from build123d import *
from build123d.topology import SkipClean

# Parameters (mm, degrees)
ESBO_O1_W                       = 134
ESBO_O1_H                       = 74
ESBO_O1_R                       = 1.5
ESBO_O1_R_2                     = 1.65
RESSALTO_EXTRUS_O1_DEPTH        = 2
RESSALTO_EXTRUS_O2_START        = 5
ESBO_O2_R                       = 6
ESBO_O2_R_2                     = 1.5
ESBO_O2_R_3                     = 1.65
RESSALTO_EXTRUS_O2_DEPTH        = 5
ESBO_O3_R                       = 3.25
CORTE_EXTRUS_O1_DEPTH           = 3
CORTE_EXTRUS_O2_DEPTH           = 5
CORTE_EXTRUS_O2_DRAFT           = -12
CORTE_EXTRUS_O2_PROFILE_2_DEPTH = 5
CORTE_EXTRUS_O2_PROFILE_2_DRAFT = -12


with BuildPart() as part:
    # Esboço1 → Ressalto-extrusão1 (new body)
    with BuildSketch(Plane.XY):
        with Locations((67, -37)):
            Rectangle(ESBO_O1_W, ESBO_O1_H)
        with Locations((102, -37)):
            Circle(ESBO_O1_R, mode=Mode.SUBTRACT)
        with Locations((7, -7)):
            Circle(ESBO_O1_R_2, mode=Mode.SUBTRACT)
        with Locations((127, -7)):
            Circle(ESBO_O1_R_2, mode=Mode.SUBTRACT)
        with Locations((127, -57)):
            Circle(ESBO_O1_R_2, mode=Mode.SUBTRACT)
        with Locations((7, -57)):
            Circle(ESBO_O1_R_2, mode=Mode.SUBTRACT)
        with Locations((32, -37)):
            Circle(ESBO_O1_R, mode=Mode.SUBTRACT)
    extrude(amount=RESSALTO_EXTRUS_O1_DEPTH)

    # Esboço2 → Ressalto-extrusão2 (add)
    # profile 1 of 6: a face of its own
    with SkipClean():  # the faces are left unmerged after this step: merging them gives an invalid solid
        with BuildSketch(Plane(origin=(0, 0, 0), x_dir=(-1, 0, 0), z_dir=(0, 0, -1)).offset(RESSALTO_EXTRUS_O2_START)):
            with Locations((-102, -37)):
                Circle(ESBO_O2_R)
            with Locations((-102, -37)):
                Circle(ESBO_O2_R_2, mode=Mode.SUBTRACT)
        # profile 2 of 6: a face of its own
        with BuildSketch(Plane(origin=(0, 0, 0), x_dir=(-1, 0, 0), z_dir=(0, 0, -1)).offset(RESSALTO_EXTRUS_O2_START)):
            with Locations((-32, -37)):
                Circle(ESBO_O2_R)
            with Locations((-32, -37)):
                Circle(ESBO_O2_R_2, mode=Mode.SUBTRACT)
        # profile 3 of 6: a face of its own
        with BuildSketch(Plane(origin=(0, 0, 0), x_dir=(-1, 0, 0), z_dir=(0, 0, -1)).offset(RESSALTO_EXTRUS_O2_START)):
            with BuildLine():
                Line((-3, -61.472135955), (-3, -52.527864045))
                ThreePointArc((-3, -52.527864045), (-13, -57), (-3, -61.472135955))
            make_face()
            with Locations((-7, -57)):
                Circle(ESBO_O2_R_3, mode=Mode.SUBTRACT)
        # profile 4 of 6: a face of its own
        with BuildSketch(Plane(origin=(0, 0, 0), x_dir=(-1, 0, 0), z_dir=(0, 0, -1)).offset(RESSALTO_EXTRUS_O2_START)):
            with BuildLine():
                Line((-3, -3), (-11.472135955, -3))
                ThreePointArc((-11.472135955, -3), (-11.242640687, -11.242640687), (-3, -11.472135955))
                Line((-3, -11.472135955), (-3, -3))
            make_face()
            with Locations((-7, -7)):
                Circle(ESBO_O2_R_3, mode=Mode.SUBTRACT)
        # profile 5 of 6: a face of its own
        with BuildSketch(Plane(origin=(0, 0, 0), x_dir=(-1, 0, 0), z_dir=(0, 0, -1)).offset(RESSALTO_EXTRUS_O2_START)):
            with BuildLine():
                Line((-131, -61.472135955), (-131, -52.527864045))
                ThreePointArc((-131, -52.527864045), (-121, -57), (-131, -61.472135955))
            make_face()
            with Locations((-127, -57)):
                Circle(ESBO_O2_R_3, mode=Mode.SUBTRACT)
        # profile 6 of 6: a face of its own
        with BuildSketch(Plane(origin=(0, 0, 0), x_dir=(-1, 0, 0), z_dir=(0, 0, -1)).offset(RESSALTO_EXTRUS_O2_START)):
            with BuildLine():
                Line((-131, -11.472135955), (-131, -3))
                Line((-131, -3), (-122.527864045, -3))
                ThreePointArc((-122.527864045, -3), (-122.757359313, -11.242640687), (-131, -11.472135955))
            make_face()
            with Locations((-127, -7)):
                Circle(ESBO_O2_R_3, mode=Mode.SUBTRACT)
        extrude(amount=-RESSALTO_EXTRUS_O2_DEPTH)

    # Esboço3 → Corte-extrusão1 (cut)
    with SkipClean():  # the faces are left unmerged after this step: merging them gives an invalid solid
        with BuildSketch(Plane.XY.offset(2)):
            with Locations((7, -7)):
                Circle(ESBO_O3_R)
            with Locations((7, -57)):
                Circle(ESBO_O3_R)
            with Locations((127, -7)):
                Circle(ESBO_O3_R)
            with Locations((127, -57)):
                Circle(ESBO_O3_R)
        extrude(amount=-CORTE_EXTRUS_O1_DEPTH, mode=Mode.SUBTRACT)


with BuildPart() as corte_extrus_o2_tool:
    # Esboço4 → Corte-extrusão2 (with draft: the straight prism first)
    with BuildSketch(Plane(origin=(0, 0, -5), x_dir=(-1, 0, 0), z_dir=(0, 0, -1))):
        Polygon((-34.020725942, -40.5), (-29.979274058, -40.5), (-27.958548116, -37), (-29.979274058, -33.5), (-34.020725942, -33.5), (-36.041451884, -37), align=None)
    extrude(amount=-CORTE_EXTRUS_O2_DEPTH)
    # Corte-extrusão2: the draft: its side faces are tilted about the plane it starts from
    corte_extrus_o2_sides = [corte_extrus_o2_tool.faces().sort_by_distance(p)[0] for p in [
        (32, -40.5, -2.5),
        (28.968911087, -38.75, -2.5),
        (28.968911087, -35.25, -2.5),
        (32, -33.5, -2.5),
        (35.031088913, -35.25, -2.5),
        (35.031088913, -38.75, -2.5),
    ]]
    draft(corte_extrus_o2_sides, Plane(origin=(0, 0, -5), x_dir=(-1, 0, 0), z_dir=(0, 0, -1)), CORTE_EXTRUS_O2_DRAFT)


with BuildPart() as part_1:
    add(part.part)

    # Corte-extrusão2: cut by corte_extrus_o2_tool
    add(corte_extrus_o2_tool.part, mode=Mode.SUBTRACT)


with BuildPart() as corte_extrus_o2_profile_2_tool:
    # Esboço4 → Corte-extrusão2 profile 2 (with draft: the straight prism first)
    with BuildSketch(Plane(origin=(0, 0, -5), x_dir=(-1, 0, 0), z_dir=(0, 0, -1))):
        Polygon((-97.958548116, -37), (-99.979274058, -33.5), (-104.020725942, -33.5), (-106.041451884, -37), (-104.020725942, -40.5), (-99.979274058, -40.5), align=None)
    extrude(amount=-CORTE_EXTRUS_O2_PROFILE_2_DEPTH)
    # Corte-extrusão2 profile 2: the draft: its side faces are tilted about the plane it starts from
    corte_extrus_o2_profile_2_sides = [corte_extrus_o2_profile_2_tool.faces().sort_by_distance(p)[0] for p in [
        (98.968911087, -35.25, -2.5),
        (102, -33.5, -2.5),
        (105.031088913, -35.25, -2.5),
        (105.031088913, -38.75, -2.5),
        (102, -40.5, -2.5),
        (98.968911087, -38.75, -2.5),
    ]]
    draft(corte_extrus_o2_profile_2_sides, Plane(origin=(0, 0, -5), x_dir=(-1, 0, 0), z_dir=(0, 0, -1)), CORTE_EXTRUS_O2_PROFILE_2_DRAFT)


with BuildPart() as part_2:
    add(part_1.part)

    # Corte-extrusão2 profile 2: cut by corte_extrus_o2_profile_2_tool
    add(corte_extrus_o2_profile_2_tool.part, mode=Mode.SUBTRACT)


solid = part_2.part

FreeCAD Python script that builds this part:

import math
import FreeCAD as App
import Part
import Sketcher
from FreeCAD import Vector
Q = App.Units.Quantity


def faces_at(feature, points):
    """Names of the faces that lie closest to the given points."""
    faces = feature.Shape.Faces
    near = lambda p: min(range(len(faces)), key=lambda i: faces[i].distToShape(Part.Vertex(*p))[0])
    return sorted({f"Face{near(p) + 1}" for p in points})

doc = App.newDocument("Part")
body = doc.addObject("PartDesign::Body", "Body")

sketch1 = body.newObject("Sketcher::SketchObject", "Sketch")
sketch1.AttachmentSupport = (doc.getObject("XY_Plane"), [""])
sketch1.MapMode = "FlatFace"
sketch1.addGeometry(Part.LineSegment(Vector(0, 0, 0), Vector(0, -74, 0)), False)
sketch1.addGeometry(Part.LineSegment(Vector(0, -74, 0), Vector(134, -74, 0)), False)
sketch1.addGeometry(Part.LineSegment(Vector(134, -74, 0), Vector(134, 0, 0)), False)
sketch1.addGeometry(Part.LineSegment(Vector(134, 0, 0), Vector(0, 0, 0)), False)
sketch1.addGeometry(Part.Circle(Vector(7, -57, 0), Vector(0, 0, 1), 1.6), False)
sketch1.addGeometry(Part.Circle(Vector(32, -37, 0), Vector(0, 0, 1), 1.5), False)
sketch1.addGeometry(Part.Circle(Vector(127, -57, 0), Vector(0, 0, 1), 1.6), False)
sketch1.addGeometry(Part.Circle(Vector(102, -37, 0), Vector(0, 0, 1), 1.5), False)
sketch1.addGeometry(Part.Circle(Vector(7, -7, 0), Vector(0, 0, 1), 1.6), False)
sketch1.addGeometry(Part.Circle(Vector(127, -7, 0), Vector(0, 0, 1), 1.6), False)
sketch1.addConstraint(Sketcher.Constraint("Coincident", 0, 2, 1, 1))
sketch1.addConstraint(Sketcher.Constraint("Coincident", 1, 2, 2, 1))
sketch1.addConstraint(Sketcher.Constraint("Coincident", 2, 2, 3, 1))
sketch1.addConstraint(Sketcher.Constraint("Coincident", 3, 2, 0, 1))
sketch1.addConstraint(Sketcher.Constraint("Vertical", 0))
sketch1.addConstraint(Sketcher.Constraint("Horizontal", 1))
sketch1.addConstraint(Sketcher.Constraint("Vertical", 2))
sketch1.addConstraint(Sketcher.Constraint("Horizontal", 3))
sketch1.addConstraint(Sketcher.Constraint("Coincident", 3, 2, -1, 1))
sketch1.addConstraint(Sketcher.Constraint("Equal", 4, 6))
sketch1.addConstraint(Sketcher.Constraint("Equal", 5, 7))
sketch1.addConstraint(Sketcher.Constraint("Equal", 6, 8))
sketch1.addConstraint(Sketcher.Constraint("Equal", 8, 9))
sketch1.addConstraint(Sketcher.Constraint("Horizontal", 4, 3, 6, 3))
sketch1.addConstraint(Sketcher.Constraint("Horizontal", 5, 3, 7, 3))
sketch1.addConstraint(Sketcher.Constraint("Horizontal", 8, 3, 9, 3))
sketch1.addConstraint(Sketcher.Constraint("Vertical", 4, 3, 8, 3))
sketch1.addConstraint(Sketcher.Constraint("Vertical", 6, 3, 9, 3))
sketch1.addConstraint(Sketcher.Constraint("Diameter", 5, 3.0))
sketch1.addConstraint(Sketcher.Constraint("Diameter", 4, 3.3))
sketch1.addConstraint(Sketcher.Constraint("DistanceX", 1, 1, 1, 2, 134.0))
sketch1.addConstraint(Sketcher.Constraint("DistanceY", 0, 2, 0, 1, 74.0))
sketch1.addConstraint(Sketcher.Constraint("DistanceX", -1, 1, 4, 3, 7.0))
sketch1.addConstraint(Sketcher.Constraint("DistanceY", 4, 3, -1, 1, 57.0))
sketch1.addConstraint(Sketcher.Constraint("DistanceX", -1, 1, 5, 3, 32.0))
sketch1.addConstraint(Sketcher.Constraint("DistanceY", 5, 3, -1, 1, 37.0))
sketch1.addConstraint(Sketcher.Constraint("DistanceX", -1, 1, 6, 3, 127.0))
sketch1.addConstraint(Sketcher.Constraint("DistanceX", -1, 1, 7, 3, 102.0))
sketch1.addConstraint(Sketcher.Constraint("DistanceY", 8, 3, -1, 1, 7.0))
pad1 = body.newObject("PartDesign::Pad", "Pad")
pad1.Profile = sketch1
pad1.Length = 2

sketch2 = body.newObject("Sketcher::SketchObject", "Sketch001")
sketch2.AttachmentSupport = (doc.getObject("XY_Plane"), [""])
sketch2.MapMode = "FlatFace"
sketch2.AttachmentOffset = App.Placement(Vector(0, 0, -5), App.Rotation())
sketch2.addGeometry(Part.Circle(Vector(102, -37, 0), Vector(0, 0, 1), 6), False)
sketch2.addGeometry(Part.Circle(Vector(102, -37, 0), Vector(0, 0, 1), 1.5), False)
sketch2.addGeometry(Part.Circle(Vector(32, -37, 0), Vector(0, 0, 1), 6), False)
sketch2.addGeometry(Part.Circle(Vector(32, -37, 0), Vector(0, 0, 1), 1.5), False)
sketch2.addGeometry(Part.LineSegment(Vector(3, -61.5, 0), Vector(3, -52.5, 0)), False)
sketch2.addGeometry(Part.ArcOfCircle(Part.Circle(Vector(7, -57, 0), Vector(0, 0, 1), 6), math.radians(-132), math.radians(132)), False)
sketch2.addGeometry(Part.Circle(Vector(7, -57, 0), Vector(0, 0, 1), 1.6), False)
sketch2.addGeometry(Part.LineSegment(Vector(3, -3, 0), Vector(11.5, -3, 0)), False)
sketch2.addGeometry(Part.ArcOfCircle(Part.Circle(Vector(7, -7, 0), Vector(0, 0, 1), 6), math.radians(-132), math.radians(42)), False)
sketch2.addGeometry(Part.LineSegment(Vector(3, -11.5, 0), Vector(3, -3, 0)), False)
sketch2.addGeometry(Part.Circle(Vector(7, -7, 0), Vector(0, 0, 1), 1.6), False)
sketch2.addGeometry(Part.LineSegment(Vector(131, -52.5, 0), Vector(131, -61.5, 0)), False)
sketch2.addGeometry(Part.ArcOfCircle(Part.Circle(Vector(127, -57, 0), Vector(0, 0, 1), 6), math.radians(48), math.radians(312)), False)
sketch2.addGeometry(Part.Circle(Vector(127, -57, 0), Vector(0, 0, 1), 1.6), False)
sketch2.addGeometry(Part.LineSegment(Vector(131, -3, 0), Vector(131, -11.5, 0)), False)
sketch2.addGeometry(Part.ArcOfCircle(Part.Circle(Vector(127, -7, 0), Vector(0, 0, 1), 6), math.radians(138), math.radians(312)), False)
sketch2.addGeometry(Part.LineSegment(Vector(122.5, -3, 0), Vector(131, -3, 0)), False)
sketch2.addGeometry(Part.Circle(Vector(127, -7, 0), Vector(0, 0, 1), 1.6), False)
sketch2.addConstraint(Sketcher.Constraint("Coincident", 4, 1, 5, 1))
sketch2.addConstraint(Sketcher.Constraint("Coincident", 5, 2, 4, 2))
sketch2.addConstraint(Sketcher.Constraint("Coincident", 7, 2, 8, 2))
sketch2.addConstraint(Sketcher.Constraint("Coincident", 8, 1, 9, 1))
sketch2.addConstraint(Sketcher.Constraint("Coincident", 9, 2, 7, 1))
sketch2.addConstraint(Sketcher.Constraint("Coincident", 11, 1, 12, 1))
sketch2.addConstraint(Sketcher.Constraint("Coincident", 12, 2, 11, 2))
sketch2.addConstraint(Sketcher.Constraint("Coincident", 14, 2, 15, 2))
sketch2.addConstraint(Sketcher.Constraint("Coincident", 15, 1, 16, 1))
sketch2.addConstraint(Sketcher.Constraint("Coincident", 16, 2, 14, 1))
sketch2.addConstraint(Sketcher.Constraint("Vertical", 4))
sketch2.addConstraint(Sketcher.Constraint("Horizontal", 7))
sketch2.addConstraint(Sketcher.Constraint("Vertical", 9))
sketch2.addConstraint(Sketcher.Constraint("Vertical", 11))
sketch2.addConstraint(Sketcher.Constraint("Vertical", 14))
sketch2.addConstraint(Sketcher.Constraint("Horizontal", 16))
sketch2.addConstraint(Sketcher.Constraint("Coincident", 1, 3, 0, 3))
sketch2.addConstraint(Sketcher.Constraint("Coincident", 3, 3, 2, 3))
sketch2.addConstraint(Sketcher.Constraint("Coincident", 6, 3, 5, 3))
sketch2.addConstraint(Sketcher.Constraint("Coincident", 10, 3, 8, 3))
sketch2.addConstraint(Sketcher.Constraint("Coincident", 13, 3, 12, 3))
sketch2.addConstraint(Sketcher.Constraint("Coincident", 17, 3, 15, 3))
sketch2.addConstraint(Sketcher.Constraint("Equal", 0, 2))
sketch2.addConstraint(Sketcher.Constraint("Equal", 1, 3))
sketch2.addConstraint(Sketcher.Constraint("Equal", 2, 5))
sketch2.addConstraint(Sketcher.Constraint("Equal", 5, 8))
sketch2.addConstraint(Sketcher.Constraint("Equal", 6, 10))
sketch2.addConstraint(Sketcher.Constraint("Equal", 8, 12))
sketch2.addConstraint(Sketcher.Constraint("Equal", 10, 13))
sketch2.addConstraint(Sketcher.Constraint("Equal", 12, 15))
sketch2.addConstraint(Sketcher.Constraint("Equal", 13, 17))
sketch2.addConstraint(Sketcher.Constraint("Horizontal", 1, 3, 2, 3))
sketch2.addConstraint(Sketcher.Constraint("Horizontal", 6, 3, 12, 3))
sketch2.addConstraint(Sketcher.Constraint("Horizontal", 10, 3, 15, 3))
sketch2.addConstraint(Sketcher.Constraint("Horizontal", 5, 2, 11, 1))
sketch2.addConstraint(Sketcher.Constraint("Horizontal", 8, 1, 14, 2))
sketch2.addConstraint(Sketcher.Constraint("Horizontal", 9, 2, 15, 1))
sketch2.addConstraint(Sketcher.Constraint("Vertical", 6, 3, 8, 3))
sketch2.addConstraint(Sketcher.Constraint("Vertical", 13, 3, 15, 3))
sketch2.addConstraint(Sketcher.Constraint("Vertical", 5, 2, 8, 1))
sketch2.addConstraint(Sketcher.Constraint("Equal", 16, 9))
sketch2.addConstraint(Sketcher.Constraint("Diameter", 0, 12.0))
sketch2.addConstraint(Sketcher.Constraint("Diameter", 1, 3.0))
sketch2.addConstraint(Sketcher.Constraint("Diameter", 6, 3.3))
sketch2.addConstraint(Sketcher.Constraint("DistanceX", -1, 1, 0, 3, 102.0))
sketch2.addConstraint(Sketcher.Constraint("DistanceY", 0, 3, -1, 1, 37.0))
sketch2.addConstraint(Sketcher.Constraint("DistanceX", -1, 1, 2, 3, 32.0))
sketch2.addConstraint(Sketcher.Constraint("DistanceX", -1, 1, 5, 3, 7.0))
sketch2.addConstraint(Sketcher.Constraint("DistanceY", 5, 3, -1, 1, 57.0))
sketch2.addConstraint(Sketcher.Constraint("DistanceY", 8, 3, -1, 1, 7.0))
sketch2.addConstraint(Sketcher.Constraint("DistanceX", -1, 1, 12, 3, 127.0))
sketch2.addConstraint(Sketcher.Constraint("DistanceX", -1, 1, 4, 1, 3.0))
pad2 = body.newObject("PartDesign::Pad", "Pad001")
pad2.Profile = sketch2
pad2.Length = 5

sketch3 = body.newObject("Sketcher::SketchObject", "Sketch002")
sketch3.AttachmentSupport = (doc.getObject("XY_Plane"), [""])
sketch3.MapMode = "FlatFace"
sketch3.AttachmentOffset = App.Placement(Vector(0, 0, 2), App.Rotation())
sketch3.addGeometry(Part.Circle(Vector(7, -7, 0), Vector(0, 0, 1), 3.2), False)
sketch3.addGeometry(Part.Circle(Vector(7, -57, 0), Vector(0, 0, 1), 3.2), False)
sketch3.addGeometry(Part.Circle(Vector(127, -7, 0), Vector(0, 0, 1), 3.2), False)
sketch3.addGeometry(Part.Circle(Vector(127, -57, 0), Vector(0, 0, 1), 3.2), False)
sketch3.addConstraint(Sketcher.Constraint("Equal", 0, 1))
sketch3.addConstraint(Sketcher.Constraint("Equal", 1, 2))
sketch3.addConstraint(Sketcher.Constraint("Equal", 2, 3))
sketch3.addConstraint(Sketcher.Constraint("Horizontal", 0, 3, 2, 3))
sketch3.addConstraint(Sketcher.Constraint("Horizontal", 1, 3, 3, 3))
sketch3.addConstraint(Sketcher.Constraint("Vertical", 0, 3, 1, 3))
sketch3.addConstraint(Sketcher.Constraint("Vertical", 2, 3, 3, 3))
sketch3.addConstraint(Sketcher.Constraint("Diameter", 0, 6.5))
sketch3.addConstraint(Sketcher.Constraint("DistanceX", -1, 1, 0, 3, 7.0))
sketch3.addConstraint(Sketcher.Constraint("DistanceY", 0, 3, -1, 1, 7.0))
sketch3.addConstraint(Sketcher.Constraint("DistanceY", 1, 3, -1, 1, 57.0))
sketch3.addConstraint(Sketcher.Constraint("DistanceX", -1, 1, 2, 3, 127.0))
pocket1 = body.newObject("PartDesign::Pocket", "Pocket")
pocket1.Profile = sketch3
pocket1.Length = 3
body2 = doc.addObject("PartDesign::Body", "Body001")

sketch4 = body2.newObject("Sketcher::SketchObject", "Sketch003")
sketch4.AttachmentSupport = (doc.getObject("XY_Plane001"), [""])
sketch4.MapMode = "FlatFace"
sketch4.AttachmentOffset = App.Placement(Vector(0, 0, -5), App.Rotation())
sketch4.addGeometry(Part.LineSegment(Vector(34, -40.5, 0), Vector(30, -40.5, 0)), False)
sketch4.addGeometry(Part.LineSegment(Vector(30, -40.5, 0), Vector(28, -37, 0)), False)
sketch4.addGeometry(Part.LineSegment(Vector(28, -37, 0), Vector(30, -33.5, 0)), False)
sketch4.addGeometry(Part.LineSegment(Vector(30, -33.5, 0), Vector(34, -33.5, 0)), False)
sketch4.addGeometry(Part.LineSegment(Vector(34, -33.5, 0), Vector(36, -37, 0)), False)
sketch4.addGeometry(Part.LineSegment(Vector(36, -37, 0), Vector(34, -40.5, 0)), False)
sketch4.addConstraint(Sketcher.Constraint("Coincident", 0, 2, 1, 1))
sketch4.addConstraint(Sketcher.Constraint("Coincident", 1, 2, 2, 1))
sketch4.addConstraint(Sketcher.Constraint("Coincident", 2, 2, 3, 1))
sketch4.addConstraint(Sketcher.Constraint("Coincident", 3, 2, 4, 1))
sketch4.addConstraint(Sketcher.Constraint("Coincident", 4, 2, 5, 1))
sketch4.addConstraint(Sketcher.Constraint("Coincident", 5, 2, 0, 1))
sketch4.addConstraint(Sketcher.Constraint("Horizontal", 0))
sketch4.addConstraint(Sketcher.Constraint("Horizontal", 3))
sketch4.addConstraint(Sketcher.Constraint("Parallel", 1, 4))
sketch4.addConstraint(Sketcher.Constraint("Parallel", 2, 5))
sketch4.addConstraint(Sketcher.Constraint("Horizontal", 1, 2, 4, 2))
sketch4.addConstraint(Sketcher.Constraint("Vertical", 0, 2, 2, 2))
sketch4.addConstraint(Sketcher.Constraint("Vertical", 3, 2, 5, 2))
sketch4.addConstraint(Sketcher.Constraint("Angle", 1, Q("120 deg")))
sketch4.addConstraint(Sketcher.Constraint("DistanceY", 1, 2, -1, 1, 37.0))
sketch4.addConstraint(Sketcher.Constraint("DistanceY", 0, 2, 2, 2, 7.0))
sketch4.addConstraint(Sketcher.Constraint("DistanceX", 0, 2, 0, 1, 4.041452))
sketch4.addConstraint(Sketcher.Constraint("DistanceX", -1, 1, 1, 2, 27.958548))
pad3 = body2.newObject("PartDesign::Pad", "Pad002")
pad3.Profile = sketch4
pad3.Length = 5
doc.recompute()

datumplane = body2.newObject("PartDesign::Plane", "DatumPlane")
datumplane.AttachmentSupport = (doc.getObject("XY_Plane001"), [""])
datumplane.MapMode = "FlatFace"
datumplane.AttachmentOffset = App.Placement(Vector(0, 0, -5), App.Rotation())
draft = body2.newObject("PartDesign::Draft", "Draft")
draft.Base = (pad3, faces_at(pad3, [
    (32, -40.5, -2.5),
    (28.969, -38.75, -2.5),
    (28.969, -35.25, -2.5),
    (32, -33.5, -2.5),
    (35.031, -35.25, -2.5),
    (35.031, -38.75, -2.5),
]))
draft.NeutralPlane = (datumplane, [""])
draft.Angle = 12
draft.Reversed = False
doc.recompute()

boolean = body.newObject("PartDesign::Boolean", "Boolean")
boolean.Type = "Cut"
boolean.addObjects([body2])
body3 = doc.addObject("PartDesign::Body", "Body002")

sketch5 = body3.newObject("Sketcher::SketchObject", "Sketch004")
sketch5.AttachmentSupport = (doc.getObject("XY_Plane002"), [""])
sketch5.MapMode = "FlatFace"
sketch5.AttachmentOffset = App.Placement(Vector(0, 0, -5), App.Rotation())
sketch5.addGeometry(Part.LineSegment(Vector(98, -37, 0), Vector(100, -33.5, 0)), False)
sketch5.addGeometry(Part.LineSegment(Vector(100, -33.5, 0), Vector(104, -33.5, 0)), False)
sketch5.addGeometry(Part.LineSegment(Vector(104, -33.5, 0), Vector(106, -37, 0)), False)
sketch5.addGeometry(Part.LineSegment(Vector(106, -37, 0), Vector(104, -40.5, 0)), False)
sketch5.addGeometry(Part.LineSegment(Vector(104, -40.5, 0), Vector(100, -40.5, 0)), False)
sketch5.addGeometry(Part.LineSegment(Vector(100, -40.5, 0), Vector(98, -37, 0)), False)
sketch5.addConstraint(Sketcher.Constraint("Coincident", 0, 2, 1, 1))
sketch5.addConstraint(Sketcher.Constraint("Coincident", 1, 2, 2, 1))
sketch5.addConstraint(Sketcher.Constraint("Coincident", 2, 2, 3, 1))
sketch5.addConstraint(Sketcher.Constraint("Coincident", 3, 2, 4, 1))
sketch5.addConstraint(Sketcher.Constraint("Coincident", 4, 2, 5, 1))
sketch5.addConstraint(Sketcher.Constraint("Coincident", 5, 2, 0, 1))
sketch5.addConstraint(Sketcher.Constraint("Horizontal", 1))
sketch5.addConstraint(Sketcher.Constraint("Horizontal", 4))
sketch5.addConstraint(Sketcher.Constraint("Parallel", 0, 3))
sketch5.addConstraint(Sketcher.Constraint("Parallel", 2, 5))
sketch5.addConstraint(Sketcher.Constraint("Horizontal", 2, 2, 5, 2))
sketch5.addConstraint(Sketcher.Constraint("Vertical", 1, 2, 3, 2))
sketch5.addConstraint(Sketcher.Constraint("Vertical", 0, 2, 4, 2))
sketch5.addConstraint(Sketcher.Constraint("Angle", 0, Q("60 deg")))
sketch5.addConstraint(Sketcher.Constraint("DistanceY", 2, 2, -1, 1, 37.0))
sketch5.addConstraint(Sketcher.Constraint("DistanceY", 3, 2, 1, 2, 7.0))
sketch5.addConstraint(Sketcher.Constraint("DistanceX", 1, 1, 1, 2, 4.041452))
sketch5.addConstraint(Sketcher.Constraint("DistanceX", -1, 1, 2, 2, 106.041452))
pad4 = body3.newObject("PartDesign::Pad", "Pad003")
pad4.Profile = sketch5
pad4.Length = 5
doc.recompute()

datumplane2 = body3.newObject("PartDesign::Plane", "DatumPlane001")
datumplane2.AttachmentSupport = (doc.getObject("XY_Plane002"), [""])
datumplane2.MapMode = "FlatFace"
datumplane2.AttachmentOffset = App.Placement(Vector(0, 0, -5), App.Rotation())
draft2 = body3.newObject("PartDesign::Draft", "Draft001")
draft2.Base = (pad4, faces_at(pad4, [
    (98.969, -35.25, -2.5),
    (102, -33.5, -2.5),
    (105.031, -35.25, -2.5),
    (105.031, -38.75, -2.5),
    (102, -40.5, -2.5),
    (98.969, -38.75, -2.5),
]))
draft2.NeutralPlane = (datumplane2, [""])
draft2.Angle = 12
draft2.Reversed = False
doc.recompute()

boolean2 = body.newObject("PartDesign::Boolean", "Boolean001")
boolean2.Type = "Cut"
boolean2.addObjects([body3])

doc.recompute()
